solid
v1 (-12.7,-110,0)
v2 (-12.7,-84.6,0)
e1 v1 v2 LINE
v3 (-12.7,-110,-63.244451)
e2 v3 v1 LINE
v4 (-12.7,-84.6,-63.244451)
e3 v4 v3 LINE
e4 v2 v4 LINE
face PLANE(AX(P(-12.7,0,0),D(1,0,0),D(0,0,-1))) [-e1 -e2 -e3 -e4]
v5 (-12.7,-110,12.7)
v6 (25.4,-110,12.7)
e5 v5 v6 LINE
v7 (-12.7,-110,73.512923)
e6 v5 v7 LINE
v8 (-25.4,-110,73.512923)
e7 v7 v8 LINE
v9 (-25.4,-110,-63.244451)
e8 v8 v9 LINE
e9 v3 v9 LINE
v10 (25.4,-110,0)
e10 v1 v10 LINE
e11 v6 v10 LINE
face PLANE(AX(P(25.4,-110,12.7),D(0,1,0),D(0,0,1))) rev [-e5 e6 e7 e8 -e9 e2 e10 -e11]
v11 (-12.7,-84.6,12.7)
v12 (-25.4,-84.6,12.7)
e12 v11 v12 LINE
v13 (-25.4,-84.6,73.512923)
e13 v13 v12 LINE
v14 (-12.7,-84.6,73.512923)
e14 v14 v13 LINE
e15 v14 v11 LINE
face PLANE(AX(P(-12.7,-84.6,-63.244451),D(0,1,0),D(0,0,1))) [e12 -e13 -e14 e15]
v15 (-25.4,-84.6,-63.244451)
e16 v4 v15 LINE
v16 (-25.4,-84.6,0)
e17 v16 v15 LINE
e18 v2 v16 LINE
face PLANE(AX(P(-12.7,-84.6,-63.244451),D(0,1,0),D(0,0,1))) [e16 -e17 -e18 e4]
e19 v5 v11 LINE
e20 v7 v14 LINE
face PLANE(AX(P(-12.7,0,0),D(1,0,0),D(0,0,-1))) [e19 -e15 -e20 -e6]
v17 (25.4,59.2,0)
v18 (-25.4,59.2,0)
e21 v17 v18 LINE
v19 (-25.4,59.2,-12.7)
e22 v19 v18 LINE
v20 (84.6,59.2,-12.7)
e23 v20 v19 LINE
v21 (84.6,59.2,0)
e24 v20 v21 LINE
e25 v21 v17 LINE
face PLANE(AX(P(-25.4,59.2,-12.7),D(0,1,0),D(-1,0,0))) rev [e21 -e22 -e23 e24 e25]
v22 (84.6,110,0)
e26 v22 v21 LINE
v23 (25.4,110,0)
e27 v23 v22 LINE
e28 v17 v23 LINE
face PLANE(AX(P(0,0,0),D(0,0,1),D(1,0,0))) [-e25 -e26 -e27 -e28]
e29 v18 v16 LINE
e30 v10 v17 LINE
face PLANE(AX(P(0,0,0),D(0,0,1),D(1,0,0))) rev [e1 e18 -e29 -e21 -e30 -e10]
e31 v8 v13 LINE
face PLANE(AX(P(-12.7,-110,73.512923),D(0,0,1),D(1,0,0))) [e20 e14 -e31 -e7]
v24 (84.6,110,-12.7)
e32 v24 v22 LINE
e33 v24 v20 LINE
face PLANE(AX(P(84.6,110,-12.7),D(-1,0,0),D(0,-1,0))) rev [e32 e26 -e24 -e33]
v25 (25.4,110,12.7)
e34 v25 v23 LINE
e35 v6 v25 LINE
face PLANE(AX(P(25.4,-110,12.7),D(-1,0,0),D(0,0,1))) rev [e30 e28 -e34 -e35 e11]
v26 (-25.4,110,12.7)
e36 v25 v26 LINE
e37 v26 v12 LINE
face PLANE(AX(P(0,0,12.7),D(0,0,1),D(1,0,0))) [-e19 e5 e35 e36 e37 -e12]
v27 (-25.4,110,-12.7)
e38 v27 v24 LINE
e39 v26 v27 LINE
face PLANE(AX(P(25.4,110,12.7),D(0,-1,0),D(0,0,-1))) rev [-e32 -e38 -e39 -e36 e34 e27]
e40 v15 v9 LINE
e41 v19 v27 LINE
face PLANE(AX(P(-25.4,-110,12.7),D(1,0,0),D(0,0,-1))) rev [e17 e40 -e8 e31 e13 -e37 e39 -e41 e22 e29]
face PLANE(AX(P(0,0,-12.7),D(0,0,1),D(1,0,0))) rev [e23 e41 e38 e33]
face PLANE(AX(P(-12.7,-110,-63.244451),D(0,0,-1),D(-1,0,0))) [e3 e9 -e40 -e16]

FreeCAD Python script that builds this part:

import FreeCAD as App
import Part
import Sketcher

V = App.Vector
Q = App.Units.Quantity


def add_polygon(sketch, points):
    """Adds a closed chain of lines whose ends are joined by coincident constraints."""
    first, n = sketch.GeometryCount, len(points)
    for a, b in zip(points, points[1:] + points[:1]):
        sketch.addGeometry(Part.LineSegment(App.Vector(*a, 0), App.Vector(*b, 0)), False)
    for i in range(n):
        sketch.addConstraint(Sketcher.Constraint("Coincident", first + i, 2, first + (i + 1) % n, 1))

doc = App.newDocument("Part")
params = doc.addObject("Spreadsheet::Sheet", "Params")
for row, (alias, value) in enumerate([
    ("sketch1_width", "2 in"),
    ("pad1_length", "0.5 in"),
    ("sketch2_height", "2 in"),
    ("pad2_length", "0.5 in"),
    ("sketch3_width", "1 in"),
    ("pad3_length", "0.5 in"),
], start=1):
    params.set(f"A{row}", alias)
    params.set(f"B{row}", "=" + value)
    params.setAlias(f"B{row}", alias)

body = doc.addObject("PartDesign::Body", "Body")

# Sketch on XY plane
sketch1 = doc.addObject("Sketcher::SketchObject", "Sketch")
body.addObject(sketch1)
sketch1.AttachmentSupport = (doc.XY_Plane, [""])
sketch1.MapMode = "FlatFace"
add_polygon(sketch1, [(-25, 110), (-25, -110), (25, -110), (25, 110)])  # lines 0-3
sketch1.addConstraint(Sketcher.Constraint("Vertical", 0))
sketch1.addConstraint(Sketcher.Constraint("Horizontal", 1))
sketch1.addConstraint(Sketcher.Constraint("Vertical", 2))
sketch1.addConstraint(Sketcher.Constraint("Horizontal", 3))
sketch1.addConstraint(Sketcher.Constraint("Symmetric", 0, 2, 2, 2, -1, 1))
sketch1.addConstraint(Sketcher.Constraint("DistanceX", 1, 1, 1, 2, Q("2 in")))
sketch1.addConstraint(Sketcher.Constraint("DistanceY", 0, 2, 0, 1, 220.0))
sketch1.setExpression("Constraints[9]", "Params.sketch1_width")
pad1 = doc.addObject("PartDesign::Pad", "Pad")
body.addObject(pad1)
pad1.Profile = sketch1
pad1.setExpression("Length", "Params.pad1_length")

# Sketch on XY plane
sketch2 = doc.addObject("Sketcher::SketchObject", "Sketch001")
body.addObject(sketch2)
sketch2.AttachmentSupport = (doc.XY_Plane, [""])
sketch2.MapMode = "FlatFace"
add_polygon(sketch2, [(85, 110), (85, 59), (-25, 59), (-25, 110)])  # lines 0-3
sketch2.addConstraint(Sketcher.Constraint("Vertical", 0))
sketch2.addConstraint(Sketcher.Constraint("Horizontal", 1))
sketch2.addConstraint(Sketcher.Constraint("Vertical", 2))
sketch2.addConstraint(Sketcher.Constraint("Horizontal", 3))
sketch2.addConstraint(Sketcher.Constraint("DistanceY", 0, 2, 0, 1, Q("2 in")))
sketch2.addConstraint(Sketcher.Constraint("DistanceX", 1, 2, -1, 1, Q("1 in")))
sketch2.addConstraint(Sketcher.Constraint("DistanceX", 1, 2, 1, 1, 110.0))
sketch2.addConstraint(Sketcher.Constraint("DistanceY", -1, 1, 0, 2, 59.2))
sketch2.setExpression("Constraints[8]", "Params.sketch2_height")
pad2 = doc.addObject("PartDesign::Pad", "Pad001")
body.addObject(pad2)
pad2.Profile = sketch2
pad2.setExpression("Length", "Params.pad2_length")
pad2.Reversed = True

# Sketch on YZ plane
sketch3 = doc.addObject("Sketcher::SketchObject", "Sketch002")
body.addObject(sketch3)
sketch3.AttachmentSupport = (doc.YZ_Plane, [""])
sketch3.MapMode = "FlatFace"
sketch3.AttachmentOffset = App.Placement(V(0, 0, -1 * 25.4), App.Rotation())
add_polygon(sketch3, [(-85, -63), (-110, -63), (-110, 74), (-85, 74)])  # lines 0-3
sketch3.addConstraint(Sketcher.Constraint("Horizontal", 0))
sketch3.addConstraint(Sketcher.Constraint("Vertical", 1))
sketch3.addConstraint(Sketcher.Constraint("Horizontal", 2))
sketch3.addConstraint(Sketcher.Constraint("Vertical", 3))
sketch3.addConstraint(Sketcher.Constraint("DistanceX", 0, 2, 0, 1, Q("1 in")))
sketch3.addConstraint(Sketcher.Constraint("DistanceX", 0, 2, -1, 1, 110.0))
sketch3.addConstraint(Sketcher.Constraint("DistanceY", 1, 1, 1, 2, 136.757374))
sketch3.addConstraint(Sketcher.Constraint("DistanceY", 0, 2, -1, 1, 63.244451))
sketch3.setExpression("Constraints[8]", "Params.sketch3_width")
pad3 = doc.addObject("PartDesign::Pad", "Pad002")
body.addObject(pad3)
pad3.Profile = sketch3
pad3.setExpression("Length", "Params.pad3_length")

doc.recompute()
